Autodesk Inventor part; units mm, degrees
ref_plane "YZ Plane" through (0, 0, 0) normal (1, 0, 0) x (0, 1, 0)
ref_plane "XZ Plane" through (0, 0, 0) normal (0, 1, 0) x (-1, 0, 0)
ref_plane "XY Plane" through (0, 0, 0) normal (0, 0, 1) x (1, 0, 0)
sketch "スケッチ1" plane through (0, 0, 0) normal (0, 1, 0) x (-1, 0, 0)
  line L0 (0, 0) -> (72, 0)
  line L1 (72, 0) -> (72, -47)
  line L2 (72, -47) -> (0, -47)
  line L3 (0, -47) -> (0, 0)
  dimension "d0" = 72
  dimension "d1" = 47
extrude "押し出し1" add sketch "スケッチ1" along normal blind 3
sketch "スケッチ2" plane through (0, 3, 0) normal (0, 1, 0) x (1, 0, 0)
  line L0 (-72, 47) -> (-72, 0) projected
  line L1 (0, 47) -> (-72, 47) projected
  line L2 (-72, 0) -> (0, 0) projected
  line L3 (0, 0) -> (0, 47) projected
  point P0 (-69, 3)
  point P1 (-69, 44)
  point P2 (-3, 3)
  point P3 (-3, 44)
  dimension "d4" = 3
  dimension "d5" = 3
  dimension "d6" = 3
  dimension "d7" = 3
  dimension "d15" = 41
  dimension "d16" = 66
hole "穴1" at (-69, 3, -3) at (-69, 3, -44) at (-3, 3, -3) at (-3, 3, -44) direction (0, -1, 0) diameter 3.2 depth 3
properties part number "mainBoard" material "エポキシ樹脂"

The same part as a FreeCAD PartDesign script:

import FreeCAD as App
import Part
import Sketcher

V = App.Vector


def add_polygon(sketch, points):
    """Adds a closed chain of lines whose ends are joined by coincident constraints."""
    first, n = sketch.GeometryCount, len(points)
    for a, b in zip(points, points[1:] + points[:1]):
        sketch.addGeometry(Part.LineSegment(App.Vector(*a, 0), App.Vector(*b, 0)), False)
    for i in range(n):
        sketch.addConstraint(Sketcher.Constraint("Coincident", first + i, 2, first + (i + 1) % n, 1))

doc = App.newDocument("Part")
body = doc.addObject("PartDesign::Body", "Body")

# Sketch on XZ plane
sketch1 = body.newObject("Sketcher::SketchObject", "Sketch")
sketch1.AttachmentSupport = (doc.getObject("XZ_Plane"), [""])
sketch1.MapMode = "FlatFace"
add_polygon(sketch1, [(-72, 0), (0, 0), (0, -47), (-72, -47)])  # lines 0-3
sketch1.addConstraint([
    Sketcher.Constraint("Horizontal", 0),
    Sketcher.Constraint("Vertical", 1),
    Sketcher.Constraint("Horizontal", 2),
    Sketcher.Constraint("Vertical", 3),
    Sketcher.Constraint("Coincident", 0, 2, -1, 1),
    Sketcher.Constraint("DistanceX", 0, 1, 0, 2, 72.0),
    Sketcher.Constraint("DistanceY", 1, 2, 1, 1, 47.0),
])
pad1 = body.newObject("PartDesign::Pad", "Pad")
pad1.Profile = sketch1
pad1.Length = 3
pad1.Reversed = True

# Sketch on XZ plane
sketch2 = body.newObject("Sketcher::SketchObject", "Sketch001")
sketch2.AttachmentSupport = (doc.getObject("XZ_Plane"), [""])
sketch2.MapMode = "FlatFace"
sketch2.AttachmentOffset = App.Placement(V(0, 0, -3), App.Rotation())
sketch2.addGeometry([
    Part.Circle(V(-69, -3, 0), V(0, 0, 1), 1.6),
    Part.Circle(V(-69, -44, 0), V(0, 0, 1), 1.6),
    Part.Circle(V(-3, -3, 0), V(0, 0, 1), 1.6),
    Part.Circle(V(-3, -44, 0), V(0, 0, 1), 1.6),
], False)
sketch2.addConstraint([
    Sketcher.Constraint("Equal", 0, 1),
    Sketcher.Constraint("Equal", 1, 2),
    Sketcher.Constraint("Equal", 2, 3),
    Sketcher.Constraint("Horizontal", 0, 3, 2, 3),
    Sketcher.Constraint("Horizontal", 1, 3, 3, 3),
    Sketcher.Constraint("Vertical", 0, 3, 1, 3),
    Sketcher.Constraint("Vertical", 2, 3, 3, 3),
    Sketcher.Constraint("Diameter", 0, 3.2),
    Sketcher.Constraint("DistanceX", 0, 3, -1, 1, 69.0),
    Sketcher.Constraint("DistanceY", 0, 3, -1, 1, 3.0),
    Sketcher.Constraint("DistanceY", 1, 3, -1, 1, 44.0),
    Sketcher.Constraint("DistanceX", 2, 3, -1, 1, 3.0),
])
doc.recompute()
hole = body.newObject("PartDesign::Hole", "Hole")
hole.Profile = sketch2
hole.ThreadType = "None"
hole.Diameter = 3.2
hole.DepthType = "Dimension"
hole.Depth = 3
hole.DrillPoint = "Flat"
hole.Reversed = True

doc.recompute()
